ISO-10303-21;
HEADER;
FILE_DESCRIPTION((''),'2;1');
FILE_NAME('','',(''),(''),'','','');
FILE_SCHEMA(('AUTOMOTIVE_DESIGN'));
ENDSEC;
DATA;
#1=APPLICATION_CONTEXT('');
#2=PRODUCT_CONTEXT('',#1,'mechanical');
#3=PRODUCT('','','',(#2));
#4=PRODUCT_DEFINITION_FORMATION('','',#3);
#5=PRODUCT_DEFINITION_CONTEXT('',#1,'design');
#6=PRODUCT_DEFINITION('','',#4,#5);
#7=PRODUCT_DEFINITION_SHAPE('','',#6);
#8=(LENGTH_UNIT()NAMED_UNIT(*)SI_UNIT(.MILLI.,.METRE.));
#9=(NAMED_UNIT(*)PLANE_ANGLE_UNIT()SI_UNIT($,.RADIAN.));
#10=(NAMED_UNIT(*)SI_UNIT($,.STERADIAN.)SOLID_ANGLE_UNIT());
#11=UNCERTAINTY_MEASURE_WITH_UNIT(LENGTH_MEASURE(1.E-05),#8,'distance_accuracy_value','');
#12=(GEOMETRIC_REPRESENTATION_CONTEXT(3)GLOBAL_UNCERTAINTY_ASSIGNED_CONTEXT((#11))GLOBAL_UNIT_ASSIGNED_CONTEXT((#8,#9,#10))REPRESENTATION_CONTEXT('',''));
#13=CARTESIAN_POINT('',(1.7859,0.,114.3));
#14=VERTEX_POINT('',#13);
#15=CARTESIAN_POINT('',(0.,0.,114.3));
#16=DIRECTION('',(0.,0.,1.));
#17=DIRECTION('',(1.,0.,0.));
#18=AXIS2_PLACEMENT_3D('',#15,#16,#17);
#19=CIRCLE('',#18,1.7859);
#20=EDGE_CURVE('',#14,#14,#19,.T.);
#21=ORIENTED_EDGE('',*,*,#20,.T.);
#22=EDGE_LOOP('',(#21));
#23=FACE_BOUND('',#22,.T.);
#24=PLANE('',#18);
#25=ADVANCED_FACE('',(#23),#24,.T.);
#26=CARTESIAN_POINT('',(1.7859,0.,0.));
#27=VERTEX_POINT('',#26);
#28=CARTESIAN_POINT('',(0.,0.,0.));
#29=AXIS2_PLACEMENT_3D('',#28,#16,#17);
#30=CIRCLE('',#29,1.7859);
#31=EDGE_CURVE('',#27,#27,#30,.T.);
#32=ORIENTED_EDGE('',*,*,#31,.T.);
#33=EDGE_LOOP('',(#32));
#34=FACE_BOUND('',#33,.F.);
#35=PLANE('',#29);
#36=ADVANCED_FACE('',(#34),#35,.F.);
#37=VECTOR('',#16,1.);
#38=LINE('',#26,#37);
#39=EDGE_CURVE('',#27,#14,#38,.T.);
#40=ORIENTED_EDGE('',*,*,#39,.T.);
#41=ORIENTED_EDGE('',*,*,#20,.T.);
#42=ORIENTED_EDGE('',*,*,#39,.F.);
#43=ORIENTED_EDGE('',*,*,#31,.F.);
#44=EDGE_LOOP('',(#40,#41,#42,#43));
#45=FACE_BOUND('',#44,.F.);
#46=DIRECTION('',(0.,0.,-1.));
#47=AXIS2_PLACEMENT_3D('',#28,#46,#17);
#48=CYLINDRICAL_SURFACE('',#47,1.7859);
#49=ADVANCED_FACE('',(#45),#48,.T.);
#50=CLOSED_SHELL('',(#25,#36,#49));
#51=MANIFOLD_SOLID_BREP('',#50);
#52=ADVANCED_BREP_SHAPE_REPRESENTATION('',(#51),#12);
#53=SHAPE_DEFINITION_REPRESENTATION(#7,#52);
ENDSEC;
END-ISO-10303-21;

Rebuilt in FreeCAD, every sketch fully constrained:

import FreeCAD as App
import Part
import Sketcher

V = App.Vector
Q = App.Units.Quantity

doc = App.newDocument("Part")
body = doc.addObject("PartDesign::Body", "Body")

# Sketch on XY plane
sketch1 = body.newObject("Sketcher::SketchObject", "Sketch")
sketch1.AttachmentSupport = (doc.getObject("XY_Plane"), [""])
sketch1.MapMode = "FlatFace"
sketch1.addGeometry(Part.Circle(V(0, 0, 0), V(0, 0, 1), 1.8), False)
sketch1.addConstraint([
    Sketcher.Constraint("Coincident", 0, 3, -1, 1),
    Sketcher.Constraint("Diameter", 0, Q("0.140622 in")),
])
pad1 = body.newObject("PartDesign::Pad", "Pad")
pad1.Profile = sketch1
pad1.Length = Q("4.5 in")

doc.recompute()
